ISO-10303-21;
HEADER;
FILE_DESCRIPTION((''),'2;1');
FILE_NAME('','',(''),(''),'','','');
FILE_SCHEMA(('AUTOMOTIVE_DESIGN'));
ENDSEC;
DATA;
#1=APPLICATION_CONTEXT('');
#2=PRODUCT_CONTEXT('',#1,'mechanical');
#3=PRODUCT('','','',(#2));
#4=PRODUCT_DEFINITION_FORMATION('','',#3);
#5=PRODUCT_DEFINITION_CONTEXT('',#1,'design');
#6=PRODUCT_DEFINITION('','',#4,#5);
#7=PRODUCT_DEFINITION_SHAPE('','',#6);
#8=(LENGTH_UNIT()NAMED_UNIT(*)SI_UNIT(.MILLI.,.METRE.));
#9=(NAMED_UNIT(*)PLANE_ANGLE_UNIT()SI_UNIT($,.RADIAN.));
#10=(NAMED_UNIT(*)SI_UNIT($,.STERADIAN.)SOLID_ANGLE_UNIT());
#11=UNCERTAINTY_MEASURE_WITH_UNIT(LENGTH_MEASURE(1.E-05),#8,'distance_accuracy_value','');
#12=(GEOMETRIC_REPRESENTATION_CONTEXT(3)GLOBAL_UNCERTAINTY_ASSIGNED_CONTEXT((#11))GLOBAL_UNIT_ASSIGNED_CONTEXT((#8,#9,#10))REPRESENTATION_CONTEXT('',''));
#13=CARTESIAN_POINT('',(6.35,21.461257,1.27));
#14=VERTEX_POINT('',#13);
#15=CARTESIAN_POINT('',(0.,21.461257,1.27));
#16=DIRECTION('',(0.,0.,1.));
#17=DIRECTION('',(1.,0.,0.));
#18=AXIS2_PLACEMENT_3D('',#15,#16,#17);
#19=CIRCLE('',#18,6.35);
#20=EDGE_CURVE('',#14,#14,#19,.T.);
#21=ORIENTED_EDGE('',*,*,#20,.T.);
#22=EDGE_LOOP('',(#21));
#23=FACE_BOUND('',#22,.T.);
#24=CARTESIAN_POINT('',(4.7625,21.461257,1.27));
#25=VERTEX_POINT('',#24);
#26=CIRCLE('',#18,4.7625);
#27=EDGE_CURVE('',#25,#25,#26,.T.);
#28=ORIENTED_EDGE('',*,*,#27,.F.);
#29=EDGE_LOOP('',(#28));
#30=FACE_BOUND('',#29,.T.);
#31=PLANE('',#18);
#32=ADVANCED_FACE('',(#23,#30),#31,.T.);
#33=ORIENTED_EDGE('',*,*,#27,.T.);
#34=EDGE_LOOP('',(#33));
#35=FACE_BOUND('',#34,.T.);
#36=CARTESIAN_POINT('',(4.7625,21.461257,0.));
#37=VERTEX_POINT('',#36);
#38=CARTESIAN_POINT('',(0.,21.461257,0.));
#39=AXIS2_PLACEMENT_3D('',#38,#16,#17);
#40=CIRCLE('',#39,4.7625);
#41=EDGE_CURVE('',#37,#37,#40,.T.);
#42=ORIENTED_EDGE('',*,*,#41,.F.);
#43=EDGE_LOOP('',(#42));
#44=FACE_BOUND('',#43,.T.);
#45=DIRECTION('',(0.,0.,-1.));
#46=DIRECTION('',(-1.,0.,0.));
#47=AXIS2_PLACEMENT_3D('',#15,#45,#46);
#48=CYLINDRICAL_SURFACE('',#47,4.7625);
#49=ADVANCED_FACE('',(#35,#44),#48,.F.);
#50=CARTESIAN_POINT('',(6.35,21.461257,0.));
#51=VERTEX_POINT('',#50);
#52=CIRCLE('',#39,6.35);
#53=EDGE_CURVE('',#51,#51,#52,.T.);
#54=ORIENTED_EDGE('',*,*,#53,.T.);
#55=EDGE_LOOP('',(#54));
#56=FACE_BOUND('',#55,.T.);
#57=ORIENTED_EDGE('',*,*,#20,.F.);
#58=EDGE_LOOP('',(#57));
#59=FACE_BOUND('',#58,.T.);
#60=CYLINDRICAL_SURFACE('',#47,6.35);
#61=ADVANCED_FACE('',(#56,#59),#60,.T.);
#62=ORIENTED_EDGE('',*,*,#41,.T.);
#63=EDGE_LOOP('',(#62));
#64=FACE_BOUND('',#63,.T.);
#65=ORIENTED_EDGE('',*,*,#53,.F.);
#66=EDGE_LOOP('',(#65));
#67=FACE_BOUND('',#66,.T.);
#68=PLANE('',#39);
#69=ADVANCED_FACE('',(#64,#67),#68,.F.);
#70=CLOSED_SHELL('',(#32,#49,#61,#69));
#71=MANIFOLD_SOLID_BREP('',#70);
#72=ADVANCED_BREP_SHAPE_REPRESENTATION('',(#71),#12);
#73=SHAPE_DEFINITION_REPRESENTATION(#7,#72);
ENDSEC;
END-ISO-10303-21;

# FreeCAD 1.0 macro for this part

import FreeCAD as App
import Part
import Sketcher
from FreeCAD import Vector
Q = App.Units.Quantity

doc = App.newDocument("Part")
body = doc.addObject("PartDesign::Body", "Body")

# Sketch on XY plane
sketch1 = doc.addObject("Sketcher::SketchObject", "Sketch")
body.addObject(sketch1)
sketch1.AttachmentSupport = (doc.XY_Plane, [""])
sketch1.MapMode = "FlatFace"
sketch1.addGeometry([
    Part.Circle(Vector(0, 21.5, 0), Vector(0, 0, 1), 6.3),
    Part.Circle(Vector(0, 21.5, 0), Vector(0, 0, 1), 4.8),
], False)
sketch1.addConstraint([
    Sketcher.Constraint("Coincident", 1, 3, 0, 3),
    Sketcher.Constraint("PointOnObject", 0, 3, -2),
    Sketcher.Constraint("Diameter", 0, Q("0.5 in")),
    Sketcher.Constraint("Diameter", 1, Q("0.375 in")),
    Sketcher.Constraint("DistanceY", -1, 1, 0, 3, Q("21.461257 mm")),
])
pad1 = doc.addObject("PartDesign::Pad", "Pad")
body.addObject(pad1)
pad1.Profile = sketch1
pad1.Length = Q("0.05 in")

doc.recompute()
